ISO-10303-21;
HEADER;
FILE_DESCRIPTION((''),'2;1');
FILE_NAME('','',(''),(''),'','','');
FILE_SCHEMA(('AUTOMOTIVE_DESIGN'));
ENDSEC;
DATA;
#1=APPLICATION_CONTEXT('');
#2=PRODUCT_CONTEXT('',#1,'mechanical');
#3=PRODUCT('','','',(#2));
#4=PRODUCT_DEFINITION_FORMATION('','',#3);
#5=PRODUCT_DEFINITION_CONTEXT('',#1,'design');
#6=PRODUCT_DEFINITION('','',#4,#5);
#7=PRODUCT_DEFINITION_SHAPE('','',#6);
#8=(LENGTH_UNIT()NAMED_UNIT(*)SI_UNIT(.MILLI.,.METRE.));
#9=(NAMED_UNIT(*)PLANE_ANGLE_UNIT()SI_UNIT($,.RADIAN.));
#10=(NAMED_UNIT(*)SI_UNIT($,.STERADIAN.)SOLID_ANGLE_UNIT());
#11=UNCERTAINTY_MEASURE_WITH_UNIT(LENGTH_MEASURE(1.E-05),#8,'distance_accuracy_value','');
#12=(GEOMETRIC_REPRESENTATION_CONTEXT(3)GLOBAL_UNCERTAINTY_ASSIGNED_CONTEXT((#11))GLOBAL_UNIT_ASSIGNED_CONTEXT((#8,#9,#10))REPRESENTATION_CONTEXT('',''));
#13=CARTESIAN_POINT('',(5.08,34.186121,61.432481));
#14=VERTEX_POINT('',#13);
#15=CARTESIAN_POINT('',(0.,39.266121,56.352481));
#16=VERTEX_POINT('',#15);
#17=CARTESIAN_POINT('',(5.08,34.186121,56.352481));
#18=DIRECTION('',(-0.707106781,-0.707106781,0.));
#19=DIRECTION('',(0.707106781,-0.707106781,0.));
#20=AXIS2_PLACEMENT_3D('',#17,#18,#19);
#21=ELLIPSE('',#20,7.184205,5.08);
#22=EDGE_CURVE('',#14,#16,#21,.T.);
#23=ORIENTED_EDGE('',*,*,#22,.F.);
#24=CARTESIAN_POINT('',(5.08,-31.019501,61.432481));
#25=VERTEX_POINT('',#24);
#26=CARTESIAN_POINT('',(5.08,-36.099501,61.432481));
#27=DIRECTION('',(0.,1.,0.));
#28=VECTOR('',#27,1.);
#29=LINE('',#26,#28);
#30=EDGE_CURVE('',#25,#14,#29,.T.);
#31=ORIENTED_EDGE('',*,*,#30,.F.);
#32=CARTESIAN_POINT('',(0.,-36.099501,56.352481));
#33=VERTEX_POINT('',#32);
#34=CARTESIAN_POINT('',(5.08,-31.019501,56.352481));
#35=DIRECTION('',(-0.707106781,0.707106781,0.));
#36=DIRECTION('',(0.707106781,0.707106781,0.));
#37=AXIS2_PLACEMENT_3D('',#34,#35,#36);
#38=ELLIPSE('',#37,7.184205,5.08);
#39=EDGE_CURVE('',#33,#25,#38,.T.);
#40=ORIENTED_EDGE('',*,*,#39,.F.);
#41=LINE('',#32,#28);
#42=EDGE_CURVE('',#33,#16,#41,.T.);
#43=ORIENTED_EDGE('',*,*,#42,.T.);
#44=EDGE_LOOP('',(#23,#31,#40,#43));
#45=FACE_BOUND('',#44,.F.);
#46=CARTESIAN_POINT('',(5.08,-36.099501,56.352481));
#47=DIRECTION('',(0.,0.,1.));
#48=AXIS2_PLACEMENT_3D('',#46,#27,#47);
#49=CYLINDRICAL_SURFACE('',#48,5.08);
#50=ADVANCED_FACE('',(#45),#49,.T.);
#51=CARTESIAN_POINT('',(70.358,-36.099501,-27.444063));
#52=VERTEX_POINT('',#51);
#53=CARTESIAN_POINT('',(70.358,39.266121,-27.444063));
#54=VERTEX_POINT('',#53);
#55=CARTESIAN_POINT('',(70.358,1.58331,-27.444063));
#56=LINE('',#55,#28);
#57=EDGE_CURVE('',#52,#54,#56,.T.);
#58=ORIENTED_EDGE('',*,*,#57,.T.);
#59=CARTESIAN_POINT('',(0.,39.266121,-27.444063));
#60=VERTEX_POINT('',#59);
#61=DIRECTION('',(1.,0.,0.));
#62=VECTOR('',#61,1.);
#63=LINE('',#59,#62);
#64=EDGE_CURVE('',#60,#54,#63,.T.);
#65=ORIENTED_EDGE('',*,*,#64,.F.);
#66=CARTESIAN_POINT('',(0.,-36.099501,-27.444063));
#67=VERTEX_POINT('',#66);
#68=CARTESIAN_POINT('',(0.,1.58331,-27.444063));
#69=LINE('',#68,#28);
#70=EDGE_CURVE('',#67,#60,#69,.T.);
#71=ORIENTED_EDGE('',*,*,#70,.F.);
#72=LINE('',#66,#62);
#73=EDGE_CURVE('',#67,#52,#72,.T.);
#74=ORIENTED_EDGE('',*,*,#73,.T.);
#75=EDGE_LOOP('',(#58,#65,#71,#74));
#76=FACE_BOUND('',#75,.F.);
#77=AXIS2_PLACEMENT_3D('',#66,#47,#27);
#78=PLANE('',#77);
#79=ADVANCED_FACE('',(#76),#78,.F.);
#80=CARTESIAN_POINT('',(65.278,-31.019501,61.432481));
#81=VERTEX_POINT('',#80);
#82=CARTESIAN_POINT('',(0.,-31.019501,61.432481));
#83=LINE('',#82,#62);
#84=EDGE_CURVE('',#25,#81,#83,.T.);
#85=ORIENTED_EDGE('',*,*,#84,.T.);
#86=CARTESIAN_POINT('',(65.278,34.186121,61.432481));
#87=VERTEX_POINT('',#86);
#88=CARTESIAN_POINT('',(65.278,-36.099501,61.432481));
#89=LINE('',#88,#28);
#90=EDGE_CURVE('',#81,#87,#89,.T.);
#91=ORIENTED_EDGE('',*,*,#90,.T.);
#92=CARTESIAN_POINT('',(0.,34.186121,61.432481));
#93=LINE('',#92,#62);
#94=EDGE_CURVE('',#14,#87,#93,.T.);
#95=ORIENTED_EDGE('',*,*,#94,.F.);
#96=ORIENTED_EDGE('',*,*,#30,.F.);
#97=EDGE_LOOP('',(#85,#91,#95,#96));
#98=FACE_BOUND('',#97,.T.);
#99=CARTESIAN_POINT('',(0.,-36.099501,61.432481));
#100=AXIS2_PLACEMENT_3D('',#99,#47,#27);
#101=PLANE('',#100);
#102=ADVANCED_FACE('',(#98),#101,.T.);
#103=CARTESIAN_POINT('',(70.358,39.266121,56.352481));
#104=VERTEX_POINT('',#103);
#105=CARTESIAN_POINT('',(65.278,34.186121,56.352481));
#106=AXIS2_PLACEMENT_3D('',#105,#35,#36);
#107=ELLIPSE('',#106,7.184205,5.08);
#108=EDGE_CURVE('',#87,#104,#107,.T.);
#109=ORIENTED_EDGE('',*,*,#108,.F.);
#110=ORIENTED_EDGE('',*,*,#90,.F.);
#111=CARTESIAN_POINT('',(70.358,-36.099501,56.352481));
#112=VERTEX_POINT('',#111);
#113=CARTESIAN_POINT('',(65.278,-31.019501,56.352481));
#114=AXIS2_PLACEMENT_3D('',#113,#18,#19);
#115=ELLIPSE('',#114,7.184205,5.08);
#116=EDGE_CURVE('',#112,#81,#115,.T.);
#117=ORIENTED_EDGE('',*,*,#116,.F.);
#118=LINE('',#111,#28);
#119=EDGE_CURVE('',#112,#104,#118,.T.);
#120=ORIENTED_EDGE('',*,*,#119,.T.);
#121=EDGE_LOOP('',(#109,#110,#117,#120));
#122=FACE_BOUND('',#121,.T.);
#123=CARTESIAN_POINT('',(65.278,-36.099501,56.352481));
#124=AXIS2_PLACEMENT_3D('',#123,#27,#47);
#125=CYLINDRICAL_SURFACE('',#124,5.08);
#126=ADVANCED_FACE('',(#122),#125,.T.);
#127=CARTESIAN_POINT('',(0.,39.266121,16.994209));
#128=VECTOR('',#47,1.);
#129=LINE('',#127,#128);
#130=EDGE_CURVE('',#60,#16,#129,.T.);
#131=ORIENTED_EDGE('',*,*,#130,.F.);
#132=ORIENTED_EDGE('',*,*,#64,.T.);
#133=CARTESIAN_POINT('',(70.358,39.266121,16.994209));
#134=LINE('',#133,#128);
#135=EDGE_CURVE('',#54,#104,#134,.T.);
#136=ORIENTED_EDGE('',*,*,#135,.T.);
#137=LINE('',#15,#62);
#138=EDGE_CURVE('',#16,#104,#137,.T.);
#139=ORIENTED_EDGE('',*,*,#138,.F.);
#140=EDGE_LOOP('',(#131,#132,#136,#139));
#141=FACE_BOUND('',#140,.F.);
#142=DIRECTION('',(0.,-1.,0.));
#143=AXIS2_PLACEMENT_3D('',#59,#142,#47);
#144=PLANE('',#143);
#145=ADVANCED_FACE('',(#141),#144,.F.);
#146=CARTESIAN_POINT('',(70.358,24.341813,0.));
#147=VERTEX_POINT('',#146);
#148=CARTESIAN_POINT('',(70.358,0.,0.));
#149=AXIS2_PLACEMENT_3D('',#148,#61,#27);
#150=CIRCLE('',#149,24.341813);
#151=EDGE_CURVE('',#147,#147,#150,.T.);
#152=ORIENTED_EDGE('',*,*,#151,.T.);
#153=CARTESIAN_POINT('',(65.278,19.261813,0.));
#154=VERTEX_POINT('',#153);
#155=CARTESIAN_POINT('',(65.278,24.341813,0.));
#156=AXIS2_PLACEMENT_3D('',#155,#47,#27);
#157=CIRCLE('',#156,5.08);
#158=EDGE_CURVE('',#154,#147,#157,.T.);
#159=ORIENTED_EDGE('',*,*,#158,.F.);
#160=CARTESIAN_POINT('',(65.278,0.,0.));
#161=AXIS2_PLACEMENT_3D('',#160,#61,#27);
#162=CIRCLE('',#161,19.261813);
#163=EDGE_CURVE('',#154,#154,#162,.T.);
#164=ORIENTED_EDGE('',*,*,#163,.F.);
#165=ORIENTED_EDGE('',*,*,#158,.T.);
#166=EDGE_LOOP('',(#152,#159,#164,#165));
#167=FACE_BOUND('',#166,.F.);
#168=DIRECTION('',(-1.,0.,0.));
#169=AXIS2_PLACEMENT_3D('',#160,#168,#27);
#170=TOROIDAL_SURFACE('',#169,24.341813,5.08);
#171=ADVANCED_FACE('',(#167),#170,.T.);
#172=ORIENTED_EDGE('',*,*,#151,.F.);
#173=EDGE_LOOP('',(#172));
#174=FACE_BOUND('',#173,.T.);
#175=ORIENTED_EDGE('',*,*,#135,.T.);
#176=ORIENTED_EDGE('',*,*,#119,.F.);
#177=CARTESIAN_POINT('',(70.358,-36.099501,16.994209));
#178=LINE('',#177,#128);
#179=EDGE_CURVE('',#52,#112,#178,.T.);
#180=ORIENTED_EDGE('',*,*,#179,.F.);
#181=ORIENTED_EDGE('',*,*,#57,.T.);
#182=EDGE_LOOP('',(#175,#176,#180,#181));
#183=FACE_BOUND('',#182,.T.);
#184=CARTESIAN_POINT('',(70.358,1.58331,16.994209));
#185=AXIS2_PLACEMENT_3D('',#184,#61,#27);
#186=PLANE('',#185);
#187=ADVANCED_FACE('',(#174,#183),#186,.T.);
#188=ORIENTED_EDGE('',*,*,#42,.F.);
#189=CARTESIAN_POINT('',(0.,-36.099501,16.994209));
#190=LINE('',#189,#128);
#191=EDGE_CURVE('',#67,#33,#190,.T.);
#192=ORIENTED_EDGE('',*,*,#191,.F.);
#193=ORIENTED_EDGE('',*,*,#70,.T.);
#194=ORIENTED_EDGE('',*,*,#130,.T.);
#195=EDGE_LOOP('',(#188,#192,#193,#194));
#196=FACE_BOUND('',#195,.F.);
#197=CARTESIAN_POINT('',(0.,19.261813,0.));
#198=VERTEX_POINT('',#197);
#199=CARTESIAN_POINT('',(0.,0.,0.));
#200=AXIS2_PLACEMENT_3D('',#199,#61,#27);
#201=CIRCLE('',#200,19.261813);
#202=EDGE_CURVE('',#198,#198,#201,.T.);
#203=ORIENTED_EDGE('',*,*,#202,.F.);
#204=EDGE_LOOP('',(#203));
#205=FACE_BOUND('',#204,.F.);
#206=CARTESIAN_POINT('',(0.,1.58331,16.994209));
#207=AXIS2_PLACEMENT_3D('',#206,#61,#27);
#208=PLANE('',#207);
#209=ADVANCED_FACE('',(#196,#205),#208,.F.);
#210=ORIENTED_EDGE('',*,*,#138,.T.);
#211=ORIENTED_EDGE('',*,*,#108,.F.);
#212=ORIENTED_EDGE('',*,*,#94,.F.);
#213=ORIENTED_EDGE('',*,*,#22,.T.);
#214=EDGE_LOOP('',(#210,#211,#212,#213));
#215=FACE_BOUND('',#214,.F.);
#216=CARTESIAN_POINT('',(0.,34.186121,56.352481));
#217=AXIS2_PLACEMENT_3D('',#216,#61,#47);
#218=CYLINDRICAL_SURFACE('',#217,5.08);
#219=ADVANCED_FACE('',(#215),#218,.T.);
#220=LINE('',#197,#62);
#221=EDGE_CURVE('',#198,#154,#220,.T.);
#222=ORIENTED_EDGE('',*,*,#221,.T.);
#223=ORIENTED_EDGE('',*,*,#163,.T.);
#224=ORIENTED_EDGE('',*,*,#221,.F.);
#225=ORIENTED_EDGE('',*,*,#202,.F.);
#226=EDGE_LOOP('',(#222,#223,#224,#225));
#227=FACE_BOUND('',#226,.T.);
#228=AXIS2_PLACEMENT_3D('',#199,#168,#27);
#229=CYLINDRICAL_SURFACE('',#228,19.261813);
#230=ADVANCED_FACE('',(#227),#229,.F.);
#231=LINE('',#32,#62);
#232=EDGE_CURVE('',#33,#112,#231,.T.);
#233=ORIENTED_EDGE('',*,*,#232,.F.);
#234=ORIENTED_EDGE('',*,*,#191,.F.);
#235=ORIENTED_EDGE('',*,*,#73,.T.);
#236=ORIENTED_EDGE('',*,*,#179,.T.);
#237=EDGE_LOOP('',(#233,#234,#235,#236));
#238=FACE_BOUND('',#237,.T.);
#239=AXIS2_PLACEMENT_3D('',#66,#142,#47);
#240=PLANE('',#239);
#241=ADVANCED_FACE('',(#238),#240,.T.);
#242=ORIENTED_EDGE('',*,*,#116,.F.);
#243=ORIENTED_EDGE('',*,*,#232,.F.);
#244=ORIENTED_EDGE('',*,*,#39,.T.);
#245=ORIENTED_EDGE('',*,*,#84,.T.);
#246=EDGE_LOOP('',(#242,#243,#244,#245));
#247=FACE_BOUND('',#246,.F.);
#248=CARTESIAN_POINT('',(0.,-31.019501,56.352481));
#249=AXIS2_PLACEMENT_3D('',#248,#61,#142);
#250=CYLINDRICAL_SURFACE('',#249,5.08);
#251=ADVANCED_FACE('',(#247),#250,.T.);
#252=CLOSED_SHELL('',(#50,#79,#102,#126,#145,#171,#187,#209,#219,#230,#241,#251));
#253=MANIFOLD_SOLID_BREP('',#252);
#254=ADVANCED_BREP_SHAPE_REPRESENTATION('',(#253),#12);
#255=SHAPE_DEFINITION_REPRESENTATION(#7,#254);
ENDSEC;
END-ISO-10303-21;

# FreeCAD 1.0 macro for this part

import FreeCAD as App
import Part
import Sketcher
from FreeCAD import Vector
Q = App.Units.Quantity


def edges_at(feature, points):
    """Names of the edges that pass closest to the given points."""
    edges = feature.Shape.Edges
    near = lambda p: min(range(len(edges)), key=lambda i: edges[i].distToShape(Part.Vertex(*p))[0])
    return sorted({f"Edge{near(p) + 1}" for p in points})

doc = App.newDocument("Part")
params = doc.addObject("Spreadsheet::Sheet", "Params")
for row, (alias, value) in enumerate([
    ("pad1_length", "2.77 in"),
    ("fillet_radius", "0.2 in"),
], start=1):
    params.set(f"A{row}", alias)
    params.set(f"B{row}", "=" + value)
    params.setAlias(f"B{row}", alias)

body = doc.addObject("PartDesign::Body", "Body")

# Sketch on YZ plane
sketch1 = doc.addObject("Sketcher::SketchObject", "Sketch")
body.addObject(sketch1)
sketch1.AttachmentSupport = (doc.YZ_Plane, [""])
sketch1.MapMode = "FlatFace"
sketch1.addGeometry([
    Part.LineSegment(Vector(-36, 61, 0), Vector(-36, -27, 0)),  # 0
    Part.LineSegment(Vector(-36, -27, 0), Vector(39, -27, 0)),  # 1
    Part.LineSegment(Vector(39, -27, 0), Vector(39, 61, 0)),  # 2
    Part.LineSegment(Vector(39, 61, 0), Vector(-36, 61, 0)),  # 3
    Part.Circle(Vector(0, 0, 0), Vector(0, 0, 1), 19),  # 4
], False)
sketch1.addConstraint([
    Sketcher.Constraint("Coincident", 0, 2, 1, 1),
    Sketcher.Constraint("Coincident", 1, 2, 2, 1),
    Sketcher.Constraint("Coincident", 2, 2, 3, 1),
    Sketcher.Constraint("Coincident", 3, 2, 0, 1),
    Sketcher.Constraint("Vertical", 0),
    Sketcher.Constraint("Horizontal", 1),
    Sketcher.Constraint("Vertical", 2),
    Sketcher.Constraint("Horizontal", 3),
    Sketcher.Constraint("Coincident", 4, 3, -1, 1),
    Sketcher.Constraint("Diameter", 4, Q("38.523626 mm")),
    Sketcher.Constraint("DistanceX", 1, 1, 1, 2, Q("75.365622 mm")),
    Sketcher.Constraint("DistanceX", 0, 2, -1, 1, Q("36.099501 mm")),
    Sketcher.Constraint("DistanceY", 0, 2, 0, 1, Q("88.876544 mm")),
    Sketcher.Constraint("DistanceY", -1, 1, 2, 2, Q("61.432481 mm")),
])
pad1 = doc.addObject("PartDesign::Pad", "Pad")
body.addObject(pad1)
pad1.Profile = sketch1
pad1.setExpression("Length", "Params.pad1_length")
doc.recompute()

fillet = doc.addObject("PartDesign::Fillet", "Fillet")
body.addObject(fillet)
fillet.Base = (pad1, edges_at(pad1, [
    (35.179, -36.1, 61.432),
    (35.179, 39.266, 61.432),
    (70.358, 1.583, 61.432),
    (0, 1.583, 61.432),
    (70.358, -19.262, 0),
]))
fillet.setExpression("Radius", "Params.fillet_radius")

doc.recompute()
